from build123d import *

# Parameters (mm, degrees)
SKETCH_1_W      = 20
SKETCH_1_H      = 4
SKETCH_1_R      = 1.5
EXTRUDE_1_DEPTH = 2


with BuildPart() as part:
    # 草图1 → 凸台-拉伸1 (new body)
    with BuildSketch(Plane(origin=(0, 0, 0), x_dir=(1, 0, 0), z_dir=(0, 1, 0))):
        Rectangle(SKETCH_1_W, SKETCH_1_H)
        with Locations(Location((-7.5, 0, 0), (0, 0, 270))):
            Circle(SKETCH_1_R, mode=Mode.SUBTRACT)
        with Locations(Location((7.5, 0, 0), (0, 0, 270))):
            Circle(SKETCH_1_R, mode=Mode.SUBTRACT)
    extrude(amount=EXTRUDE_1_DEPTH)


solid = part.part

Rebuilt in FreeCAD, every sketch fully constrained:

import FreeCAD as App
import Part
import Sketcher
Q = App.Units.Quantity

doc = App.newDocument("Part")
params = doc.addObject("Spreadsheet::Sheet", "Params")
for row, (alias, value) in enumerate([
    ("sketch1_diameter", "3 mm"),
    ("sketch1_width", "20 mm"),
    ("sketch1_height", "4 mm"),
    ("pad1_length", "2 mm"),
], start=1):
    params.set(f"A{row}", alias)
    params.set(f"B{row}", "=" + value)
    params.setAlias(f"B{row}", alias)

body = doc.addObject("PartDesign::Body", "Body")

# Sketch on XZ plane
sketch1 = doc.addObject("Sketcher::SketchObject", "Sketch")
body.addObject(sketch1)
sketch1.AttachmentSupport = (doc.XZ_Plane, [""])
sketch1.MapMode = "FlatFace"
sketch1.addGeometry(Part.LineSegment(App.Vector(-10, -2, 0), App.Vector(-10, 2, 0)), False)
sketch1.addGeometry(Part.LineSegment(App.Vector(-10, 2, 0), App.Vector(10, 2, 0)), False)
sketch1.addGeometry(Part.LineSegment(App.Vector(10, 2, 0), App.Vector(10, -2, 0)), False)
sketch1.addGeometry(Part.LineSegment(App.Vector(10, -2, 0), App.Vector(-10, -2, 0)), False)
sketch1.addGeometry(Part.Circle(App.Vector(-7.5, 0, 0), App.Vector(0, 0, 1), 1.5), False)
sketch1.addGeometry(Part.Circle(App.Vector(7.5, 0, 0), App.Vector(0, 0, 1), 1.5), False)
sketch1.addConstraint(Sketcher.Constraint("Coincident", 0, 2, 1, 1))
sketch1.addConstraint(Sketcher.Constraint("Coincident", 1, 2, 2, 1))
sketch1.addConstraint(Sketcher.Constraint("Coincident", 2, 2, 3, 1))
sketch1.addConstraint(Sketcher.Constraint("Coincident", 3, 2, 0, 1))
sketch1.addConstraint(Sketcher.Constraint("Vertical", 0))
sketch1.addConstraint(Sketcher.Constraint("Horizontal", 1))
sketch1.addConstraint(Sketcher.Constraint("Vertical", 2))
sketch1.addConstraint(Sketcher.Constraint("Horizontal", 3))
sketch1.addConstraint(Sketcher.Constraint("Equal", 4, 5))
sketch1.addConstraint(Sketcher.Constraint("Symmetric", 4, 3, 5, 3, -1, 1))
sketch1.addConstraint(Sketcher.Constraint("Symmetric", 0, 2, 2, 2, -1, 1))
sketch1.addConstraint(Sketcher.Constraint("PointOnObject", 4, 3, -1))
sketch1.addConstraint(Sketcher.Constraint("Diameter", 4, Q("3 mm")))
sketch1.addConstraint(Sketcher.Constraint("DistanceX", 1, 1, 1, 2, Q("20 mm")))
sketch1.addConstraint(Sketcher.Constraint("DistanceY", 0, 1, 0, 2, Q("4 mm")))
sketch1.addConstraint(Sketcher.Constraint("DistanceX", 4, 3, 5, 3, Q("15 mm")))
sketch1.setExpression("Constraints[12]", "Params.sketch1_diameter")
sketch1.setExpression("Constraints[13]", "Params.sketch1_width")
sketch1.setExpression("Constraints[14]", "Params.sketch1_height")
pad1 = doc.addObject("PartDesign::Pad", "Pad")
body.addObject(pad1)
pad1.Profile = sketch1
pad1.setExpression("Length", "Params.pad1_length")
pad1.Reversed = True

doc.recompute()
